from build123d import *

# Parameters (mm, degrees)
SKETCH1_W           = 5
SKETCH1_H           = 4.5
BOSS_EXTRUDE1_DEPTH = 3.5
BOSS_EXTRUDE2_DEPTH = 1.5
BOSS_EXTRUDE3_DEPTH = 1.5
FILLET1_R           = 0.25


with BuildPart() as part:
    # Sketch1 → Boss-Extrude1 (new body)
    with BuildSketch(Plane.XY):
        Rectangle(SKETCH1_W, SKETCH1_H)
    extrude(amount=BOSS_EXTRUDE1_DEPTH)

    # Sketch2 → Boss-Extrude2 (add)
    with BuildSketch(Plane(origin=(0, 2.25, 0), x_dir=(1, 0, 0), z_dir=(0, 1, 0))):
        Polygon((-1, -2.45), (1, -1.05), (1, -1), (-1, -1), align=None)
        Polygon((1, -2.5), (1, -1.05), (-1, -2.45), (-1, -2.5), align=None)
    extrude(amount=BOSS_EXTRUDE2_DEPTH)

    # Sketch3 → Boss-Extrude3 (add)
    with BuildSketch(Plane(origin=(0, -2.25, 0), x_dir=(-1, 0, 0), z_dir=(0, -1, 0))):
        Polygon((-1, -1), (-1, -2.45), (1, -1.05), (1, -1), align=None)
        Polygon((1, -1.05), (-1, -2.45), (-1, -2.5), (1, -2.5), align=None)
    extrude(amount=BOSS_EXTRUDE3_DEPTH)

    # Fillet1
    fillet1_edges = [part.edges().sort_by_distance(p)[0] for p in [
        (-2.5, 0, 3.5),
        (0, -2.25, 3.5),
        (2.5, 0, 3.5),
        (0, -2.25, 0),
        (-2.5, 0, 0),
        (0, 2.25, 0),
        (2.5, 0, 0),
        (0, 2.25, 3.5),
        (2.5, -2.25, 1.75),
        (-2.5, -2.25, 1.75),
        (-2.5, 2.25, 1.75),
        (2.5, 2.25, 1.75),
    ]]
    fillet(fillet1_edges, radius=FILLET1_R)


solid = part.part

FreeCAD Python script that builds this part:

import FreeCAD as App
import Part
import Sketcher
from FreeCAD import Vector
Q = App.Units.Quantity


def edges_at(feature, points):
    """Names of the edges that pass closest to the given points."""
    edges = feature.Shape.Edges
    near = lambda p: min(range(len(edges)), key=lambda i: edges[i].distToShape(Part.Vertex(*p))[0])
    return sorted({f"Edge{near(p) + 1}" for p in points})


def add_polygon(sketch, points):
    """Adds a closed chain of lines whose ends are joined by coincident constraints."""
    first, n = sketch.GeometryCount, len(points)
    for a, b in zip(points, points[1:] + points[:1]):
        sketch.addGeometry(Part.LineSegment(App.Vector(*a, 0), App.Vector(*b, 0)), False)
    for i in range(n):
        sketch.addConstraint(Sketcher.Constraint("Coincident", first + i, 2, first + (i + 1) % n, 1))

doc = App.newDocument("Part")
body = doc.addObject("PartDesign::Body", "Body")

sketch1 = doc.addObject("Sketcher::SketchObject", "Sketch")
body.addObject(sketch1)
sketch1.AttachmentSupport = (doc.XY_Plane, [""])
sketch1.MapMode = "FlatFace"
add_polygon(sketch1, [(-2.5, 2.2), (-2.5, -2.2), (2.5, -2.2), (2.5, 2.2)])
sketch1.addConstraint(Sketcher.Constraint("Vertical", 0))
sketch1.addConstraint(Sketcher.Constraint("Horizontal", 1))
sketch1.addConstraint(Sketcher.Constraint("Vertical", 2))
sketch1.addConstraint(Sketcher.Constraint("Horizontal", 3))
sketch1.addConstraint(Sketcher.Constraint("Symmetric", 0, 2, 2, 2, -1, 1))
sketch1.addConstraint(Sketcher.Constraint("DistanceX", 1, 1, 1, 2, Q("5 mm")))
sketch1.addConstraint(Sketcher.Constraint("DistanceY", 0, 2, 0, 1, Q("4.5 mm")))
pad1 = doc.addObject("PartDesign::Pad", "Pad")
body.addObject(pad1)
pad1.Profile = sketch1
pad1.Length = 3.5

sketch2 = doc.addObject("Sketcher::SketchObject", "Sketch001")
body.addObject(sketch2)
sketch2.AttachmentSupport = (doc.XZ_Plane, [""])
sketch2.MapMode = "FlatFace"
sketch2.AttachmentOffset = App.Placement(Vector(0, 0, -2.25), App.Rotation())
add_polygon(sketch2, [(1, 1), (-1, 1), (-1, 2.5), (1, 2.5)])
sketch2.addConstraint(Sketcher.Constraint("Horizontal", 0))
sketch2.addConstraint(Sketcher.Constraint("Vertical", 1))
sketch2.addConstraint(Sketcher.Constraint("Horizontal", 2))
sketch2.addConstraint(Sketcher.Constraint("Vertical", 3))
sketch2.addConstraint(Sketcher.Constraint("DistanceX", 0, 2, 0, 1, Q("2 mm")))
sketch2.addConstraint(Sketcher.Constraint("DistanceY", 1, 1, 1, 2, Q("1.5 mm")))
sketch2.addConstraint(Sketcher.Constraint("DistanceX", 0, 2, -1, 1, Q("1 mm")))
sketch2.addConstraint(Sketcher.Constraint("DistanceY", -1, 1, 0, 2, Q("1 mm")))
pad2 = doc.addObject("PartDesign::Pad", "Pad001")
body.addObject(pad2)
pad2.Profile = sketch2
pad2.Length = 1.5
pad2.Reversed = True

sketch3 = doc.addObject("Sketcher::SketchObject", "Sketch002")
body.addObject(sketch3)
sketch3.AttachmentSupport = (doc.XZ_Plane, [""])
sketch3.MapMode = "FlatFace"
sketch3.AttachmentOffset = App.Placement(Vector(0, 0, 2.25), App.Rotation())
add_polygon(sketch3, [(1, 1), (1, 2.5), (-1, 2.5), (-1, 1)])
sketch3.addConstraint(Sketcher.Constraint("Vertical", 0))
sketch3.addConstraint(Sketcher.Constraint("Horizontal", 1))
sketch3.addConstraint(Sketcher.Constraint("Vertical", 2))
sketch3.addConstraint(Sketcher.Constraint("Horizontal", 3))
sketch3.addConstraint(Sketcher.Constraint("DistanceX", 1, 2, 1, 1, Q("2 mm")))
sketch3.addConstraint(Sketcher.Constraint("DistanceY", 0, 1, 0, 2, Q("1.5 mm")))
sketch3.addConstraint(Sketcher.Constraint("DistanceX", -1, 1, 0, 2, Q("1 mm")))
sketch3.addConstraint(Sketcher.Constraint("DistanceY", -1, 1, 2, 2, Q("1 mm")))
pad3 = doc.addObject("PartDesign::Pad", "Pad002")
body.addObject(pad3)
pad3.Profile = sketch3
pad3.Length = 1.5
doc.recompute()

fillet = doc.addObject("PartDesign::Fillet", "Fillet")
body.addObject(fillet)
fillet.Base = (pad3, edges_at(pad3, [
    (-2.5, 0, 3.5),
    (0, -2.25, 3.5),
    (2.5, 0, 3.5),
    (0, -2.25, 0),
    (-2.5, 0, 0),
    (0, 2.25, 0),
    (2.5, 0, 0),
    (0, 2.25, 3.5),
    (2.5, -2.25, 1.75),
    (-2.5, -2.25, 1.75),
    (-2.5, 2.25, 1.75),
    (2.5, 2.25, 1.75),
]))
fillet.Radius = 0.25

doc.recompute()
